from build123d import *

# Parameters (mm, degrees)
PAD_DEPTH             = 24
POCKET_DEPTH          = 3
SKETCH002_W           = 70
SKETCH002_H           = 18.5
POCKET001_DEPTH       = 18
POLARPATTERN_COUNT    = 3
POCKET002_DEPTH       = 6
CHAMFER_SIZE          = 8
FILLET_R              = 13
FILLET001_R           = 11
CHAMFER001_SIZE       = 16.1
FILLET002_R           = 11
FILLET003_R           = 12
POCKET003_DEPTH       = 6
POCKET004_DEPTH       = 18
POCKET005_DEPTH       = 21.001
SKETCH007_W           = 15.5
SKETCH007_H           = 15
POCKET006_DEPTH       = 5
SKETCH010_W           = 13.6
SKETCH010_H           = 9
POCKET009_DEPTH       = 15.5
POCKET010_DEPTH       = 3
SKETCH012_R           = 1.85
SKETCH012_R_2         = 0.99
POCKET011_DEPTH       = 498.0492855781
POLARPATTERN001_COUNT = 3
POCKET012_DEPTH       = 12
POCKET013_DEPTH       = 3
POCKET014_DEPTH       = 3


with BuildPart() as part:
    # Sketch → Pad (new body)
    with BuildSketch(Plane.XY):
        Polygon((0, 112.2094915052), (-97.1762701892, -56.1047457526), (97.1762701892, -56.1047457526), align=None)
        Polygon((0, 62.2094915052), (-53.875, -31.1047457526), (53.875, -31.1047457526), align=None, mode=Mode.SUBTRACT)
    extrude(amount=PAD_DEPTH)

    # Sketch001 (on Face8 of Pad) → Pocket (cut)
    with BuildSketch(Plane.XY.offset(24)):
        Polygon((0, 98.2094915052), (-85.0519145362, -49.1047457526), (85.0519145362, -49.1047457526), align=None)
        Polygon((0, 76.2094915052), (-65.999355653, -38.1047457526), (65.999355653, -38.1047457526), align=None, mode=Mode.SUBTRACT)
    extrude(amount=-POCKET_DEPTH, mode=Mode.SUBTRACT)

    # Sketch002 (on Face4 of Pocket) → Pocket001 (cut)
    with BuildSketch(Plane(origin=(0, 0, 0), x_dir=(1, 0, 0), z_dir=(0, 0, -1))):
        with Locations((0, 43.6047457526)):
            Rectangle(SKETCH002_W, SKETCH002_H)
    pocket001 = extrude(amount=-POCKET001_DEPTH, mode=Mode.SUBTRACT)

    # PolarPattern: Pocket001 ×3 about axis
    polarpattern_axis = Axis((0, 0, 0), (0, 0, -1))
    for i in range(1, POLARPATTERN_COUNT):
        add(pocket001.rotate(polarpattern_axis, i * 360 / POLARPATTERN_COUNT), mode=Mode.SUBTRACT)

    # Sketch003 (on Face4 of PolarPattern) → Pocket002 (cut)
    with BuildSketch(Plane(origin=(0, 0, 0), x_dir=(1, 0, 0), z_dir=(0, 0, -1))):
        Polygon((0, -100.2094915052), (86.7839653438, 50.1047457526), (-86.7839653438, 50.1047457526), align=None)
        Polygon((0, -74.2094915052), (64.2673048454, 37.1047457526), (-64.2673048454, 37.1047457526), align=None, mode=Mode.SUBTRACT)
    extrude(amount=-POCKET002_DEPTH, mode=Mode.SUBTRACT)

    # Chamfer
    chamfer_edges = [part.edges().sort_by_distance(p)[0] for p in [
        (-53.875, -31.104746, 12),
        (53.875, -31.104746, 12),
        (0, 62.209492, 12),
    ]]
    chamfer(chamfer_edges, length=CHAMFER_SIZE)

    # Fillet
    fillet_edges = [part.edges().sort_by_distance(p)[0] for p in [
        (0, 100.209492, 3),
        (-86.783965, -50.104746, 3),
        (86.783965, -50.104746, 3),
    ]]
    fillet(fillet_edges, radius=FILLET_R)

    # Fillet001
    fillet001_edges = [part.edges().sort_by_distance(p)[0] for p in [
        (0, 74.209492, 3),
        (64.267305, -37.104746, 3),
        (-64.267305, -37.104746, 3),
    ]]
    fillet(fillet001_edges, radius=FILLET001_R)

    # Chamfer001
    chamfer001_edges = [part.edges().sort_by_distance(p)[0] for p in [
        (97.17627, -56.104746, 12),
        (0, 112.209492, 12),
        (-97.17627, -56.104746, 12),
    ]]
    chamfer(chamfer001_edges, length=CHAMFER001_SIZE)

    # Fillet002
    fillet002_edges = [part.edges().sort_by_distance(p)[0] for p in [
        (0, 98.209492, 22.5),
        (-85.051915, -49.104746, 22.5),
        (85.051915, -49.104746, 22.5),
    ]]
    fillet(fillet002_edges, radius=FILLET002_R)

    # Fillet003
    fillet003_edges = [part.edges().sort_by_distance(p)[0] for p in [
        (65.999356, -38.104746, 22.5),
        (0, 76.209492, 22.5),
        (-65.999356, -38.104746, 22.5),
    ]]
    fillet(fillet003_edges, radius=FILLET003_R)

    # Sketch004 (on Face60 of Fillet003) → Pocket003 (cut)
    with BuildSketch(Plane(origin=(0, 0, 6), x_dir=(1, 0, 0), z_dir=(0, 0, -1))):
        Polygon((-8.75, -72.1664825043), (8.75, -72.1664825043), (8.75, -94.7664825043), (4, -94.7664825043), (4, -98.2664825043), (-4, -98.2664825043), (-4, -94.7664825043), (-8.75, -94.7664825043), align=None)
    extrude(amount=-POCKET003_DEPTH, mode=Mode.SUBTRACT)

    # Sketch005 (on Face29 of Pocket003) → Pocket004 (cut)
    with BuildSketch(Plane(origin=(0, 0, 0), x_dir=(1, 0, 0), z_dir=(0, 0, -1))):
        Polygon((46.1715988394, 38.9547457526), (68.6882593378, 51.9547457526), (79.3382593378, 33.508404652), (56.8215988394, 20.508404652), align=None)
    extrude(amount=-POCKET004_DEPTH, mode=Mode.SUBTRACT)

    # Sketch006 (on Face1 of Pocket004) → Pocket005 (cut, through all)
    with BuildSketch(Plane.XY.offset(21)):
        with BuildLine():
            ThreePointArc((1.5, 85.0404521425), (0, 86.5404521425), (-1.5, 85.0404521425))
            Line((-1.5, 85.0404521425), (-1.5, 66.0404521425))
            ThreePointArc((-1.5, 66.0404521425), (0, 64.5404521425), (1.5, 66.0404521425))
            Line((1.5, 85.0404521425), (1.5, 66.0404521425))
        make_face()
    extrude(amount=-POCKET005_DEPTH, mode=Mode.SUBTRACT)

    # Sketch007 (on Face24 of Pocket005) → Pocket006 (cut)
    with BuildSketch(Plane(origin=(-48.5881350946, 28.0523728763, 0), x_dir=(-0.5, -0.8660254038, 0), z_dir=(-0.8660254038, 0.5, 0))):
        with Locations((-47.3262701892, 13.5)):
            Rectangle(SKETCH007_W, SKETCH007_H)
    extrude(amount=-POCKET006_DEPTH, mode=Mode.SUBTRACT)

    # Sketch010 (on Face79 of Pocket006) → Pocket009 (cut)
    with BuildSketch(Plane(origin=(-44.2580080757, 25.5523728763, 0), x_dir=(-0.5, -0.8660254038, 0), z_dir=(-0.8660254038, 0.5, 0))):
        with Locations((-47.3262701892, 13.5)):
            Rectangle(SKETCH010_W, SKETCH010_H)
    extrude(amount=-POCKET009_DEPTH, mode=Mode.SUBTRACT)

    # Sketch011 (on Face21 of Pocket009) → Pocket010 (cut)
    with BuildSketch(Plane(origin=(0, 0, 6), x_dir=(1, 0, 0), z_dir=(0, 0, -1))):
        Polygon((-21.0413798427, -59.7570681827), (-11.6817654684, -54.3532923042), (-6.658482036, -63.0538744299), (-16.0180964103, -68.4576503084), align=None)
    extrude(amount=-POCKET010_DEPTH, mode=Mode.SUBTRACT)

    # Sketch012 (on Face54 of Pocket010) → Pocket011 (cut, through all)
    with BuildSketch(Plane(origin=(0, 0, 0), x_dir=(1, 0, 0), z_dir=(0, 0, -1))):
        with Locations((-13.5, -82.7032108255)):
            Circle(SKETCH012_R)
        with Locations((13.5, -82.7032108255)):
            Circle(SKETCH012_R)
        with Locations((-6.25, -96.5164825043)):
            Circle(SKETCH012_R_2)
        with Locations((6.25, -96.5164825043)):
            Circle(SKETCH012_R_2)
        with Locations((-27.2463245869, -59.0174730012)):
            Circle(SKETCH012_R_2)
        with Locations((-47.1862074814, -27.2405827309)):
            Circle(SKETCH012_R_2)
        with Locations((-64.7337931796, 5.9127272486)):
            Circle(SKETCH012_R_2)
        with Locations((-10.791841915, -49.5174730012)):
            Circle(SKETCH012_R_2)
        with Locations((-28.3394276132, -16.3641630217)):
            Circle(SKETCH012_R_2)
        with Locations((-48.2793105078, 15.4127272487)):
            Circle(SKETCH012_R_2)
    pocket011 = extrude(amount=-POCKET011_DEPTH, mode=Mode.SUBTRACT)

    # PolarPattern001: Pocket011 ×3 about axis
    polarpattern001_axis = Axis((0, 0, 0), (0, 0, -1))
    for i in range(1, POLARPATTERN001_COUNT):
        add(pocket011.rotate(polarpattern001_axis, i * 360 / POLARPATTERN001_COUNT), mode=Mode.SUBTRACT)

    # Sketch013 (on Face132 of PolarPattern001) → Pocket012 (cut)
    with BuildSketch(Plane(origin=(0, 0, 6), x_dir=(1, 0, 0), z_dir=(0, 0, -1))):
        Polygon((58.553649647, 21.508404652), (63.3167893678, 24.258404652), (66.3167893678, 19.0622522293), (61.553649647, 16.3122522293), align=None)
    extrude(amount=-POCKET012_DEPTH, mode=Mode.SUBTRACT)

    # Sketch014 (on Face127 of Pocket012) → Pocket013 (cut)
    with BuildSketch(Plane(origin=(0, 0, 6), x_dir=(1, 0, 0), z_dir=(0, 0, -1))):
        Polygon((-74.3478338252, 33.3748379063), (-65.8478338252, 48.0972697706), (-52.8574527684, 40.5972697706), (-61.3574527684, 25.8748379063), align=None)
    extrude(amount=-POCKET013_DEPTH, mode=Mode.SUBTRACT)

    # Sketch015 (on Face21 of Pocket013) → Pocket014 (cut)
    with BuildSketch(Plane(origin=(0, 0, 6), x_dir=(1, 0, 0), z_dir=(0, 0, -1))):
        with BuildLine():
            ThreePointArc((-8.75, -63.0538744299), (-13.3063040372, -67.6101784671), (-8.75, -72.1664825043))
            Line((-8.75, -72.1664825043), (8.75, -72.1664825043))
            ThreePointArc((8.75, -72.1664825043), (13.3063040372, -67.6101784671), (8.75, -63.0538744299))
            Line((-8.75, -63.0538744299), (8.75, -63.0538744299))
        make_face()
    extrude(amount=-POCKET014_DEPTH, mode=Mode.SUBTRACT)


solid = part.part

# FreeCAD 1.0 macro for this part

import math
import FreeCAD as App
import Part
import Sketcher

V = App.Vector
Q = App.Units.Quantity


def edges_at(feature, points):
    """Names of the edges that pass closest to the given points."""
    edges = feature.Shape.Edges
    near = lambda p: min(range(len(edges)), key=lambda i: edges[i].distToShape(Part.Vertex(*p))[0])
    return sorted({f"Edge{near(p) + 1}" for p in points})


def add_polygon(sketch, points):
    """Adds a closed chain of lines whose ends are joined by coincident constraints."""
    first, n = sketch.GeometryCount, len(points)
    for a, b in zip(points, points[1:] + points[:1]):
        sketch.addGeometry(Part.LineSegment(App.Vector(*a, 0), App.Vector(*b, 0)), False)
    for i in range(n):
        sketch.addConstraint(Sketcher.Constraint("Coincident", first + i, 2, first + (i + 1) % n, 1))

doc = App.newDocument("Part")
body = doc.addObject("PartDesign::Body", "Body")

sketch1 = body.newObject("Sketcher::SketchObject", "Sketch")
sketch1.AttachmentSupport = (doc.getObject("XY_Plane"), [""])
sketch1.MapMode = "FlatFace"
add_polygon(sketch1, [(0, 112), (-97, -56), (97, -56)])
add_polygon(sketch1, [(-54, -31), (0, 62), (54, -31)])
sketch1.addConstraint([
    Sketcher.Constraint("Horizontal", 1),
    Sketcher.Constraint("Horizontal", 5),
    Sketcher.Constraint("PointOnObject", 2, 2, -2),
    Sketcher.Constraint("PointOnObject", 3, 2, -2),
    Sketcher.Constraint("Parallel", 0, 3),
    Sketcher.Constraint("Parallel", 2, 4),
    Sketcher.Constraint("Equal", 0, 2),
    Sketcher.Constraint("Angle", 0, Q("-120 deg")),
    Sketcher.Constraint("DistanceY", 3, 2, 2, 2, Q("50 mm")),
    Sketcher.Constraint("DistanceY", 1, 2, 4, 2, Q("25 mm")),
    Sketcher.Constraint("DistanceX", 5, 2, 5, 1, Q("107.75 mm")),
    Sketcher.Constraint("DistanceY", -1, 1, 2, 2, Q("112.209492 mm")),
])
pad1 = body.newObject("PartDesign::Pad", "Pad")
pad1.Profile = sketch1
pad1.Length = 24

sketch2 = body.newObject("Sketcher::SketchObject", "Sketch001")
sketch2.AttachmentSupport = (doc.getObject("XY_Plane"), [""])
sketch2.MapMode = "FlatFace"
sketch2.AttachmentOffset = App.Placement(V(0, 0, 24), App.Rotation())
add_polygon(sketch2, [(0, 98), (-85, -49), (85, -49)])
add_polygon(sketch2, [(-66, -38), (0, 76), (66, -38)])
sketch2.addConstraint([
    Sketcher.Constraint("Horizontal", 1),
    Sketcher.Constraint("Horizontal", 5),
    Sketcher.Constraint("PointOnObject", 2, 2, -2),
    Sketcher.Constraint("PointOnObject", 3, 2, -2),
    Sketcher.Constraint("Parallel", 0, 3),
    Sketcher.Constraint("Parallel", 2, 4),
    Sketcher.Constraint("Equal", 0, 2),
    Sketcher.Constraint("Angle", 0, Q("-120 deg")),
    Sketcher.Constraint("DistanceY", 3, 2, 2, 2, Q("22 mm")),
    Sketcher.Constraint("DistanceY", 1, 2, 4, 2, Q("11 mm")),
    Sketcher.Constraint("DistanceX", 1, 1, 1, 2, Q("170.103829 mm")),
    Sketcher.Constraint("DistanceY", -1, 1, 2, 2, Q("98.209492 mm")),
])
pocket1 = body.newObject("PartDesign::Pocket", "Pocket")
pocket1.Profile = sketch2
pocket1.Length = 3

sketch3 = body.newObject("Sketcher::SketchObject", "Sketch002")
sketch3.AttachmentSupport = (doc.getObject("XY_Plane"), [""])
sketch3.MapMode = "FlatFace"
add_polygon(sketch3, [(-35, -53), (-35, -34), (35, -34), (35, -53)])
sketch3.addConstraint([
    Sketcher.Constraint("Vertical", 0),
    Sketcher.Constraint("Horizontal", 1),
    Sketcher.Constraint("Vertical", 2),
    Sketcher.Constraint("Horizontal", 3),
    Sketcher.Constraint("DistanceX", 1, 1, 1, 2, Q("70 mm")),
    Sketcher.Constraint("DistanceY", 0, 1, 0, 2, Q("18.5 mm")),
    Sketcher.Constraint("DistanceX", 0, 2, -1, 1, Q("35 mm")),
    Sketcher.Constraint("DistanceY", 0, 2, -1, 1, Q("34.354746 mm")),
])
pocket2 = body.newObject("PartDesign::Pocket", "Pocket001")
pocket2.Profile = sketch3
pocket2.Length = 18
pocket2.Reversed = True
doc.recompute()

polarpattern = body.newObject("PartDesign::PolarPattern", "PolarPattern")
polarpattern.Originals = [pocket2]
polarpattern.Axis = (doc.getObject("Z_Axis"), [""])
polarpattern.Angle = 360
polarpattern.Occurrences = 3
body.Tip = polarpattern

sketch4 = body.newObject("Sketcher::SketchObject", "Sketch003")
sketch4.AttachmentSupport = (doc.getObject("XY_Plane"), [""])
sketch4.MapMode = "FlatFace"
add_polygon(sketch4, [(0, 100), (87, -50), (-87, -50)])
add_polygon(sketch4, [(64, -37), (0, 74), (-64, -37)])
sketch4.addConstraint([
    Sketcher.Constraint("Horizontal", 1),
    Sketcher.Constraint("Horizontal", 5),
    Sketcher.Constraint("PointOnObject", 2, 2, -2),
    Sketcher.Constraint("PointOnObject", 3, 2, -2),
    Sketcher.Constraint("Parallel", 0, 3),
    Sketcher.Constraint("Parallel", 2, 4),
    Sketcher.Constraint("Equal", 0, 2),
    Sketcher.Constraint("Angle", 0, Q("-60 deg")),
    Sketcher.Constraint("DistanceY", 3, 2, 2, 2, Q("26 mm")),
    Sketcher.Constraint("DistanceY", 1, 2, 4, 2, Q("13 mm")),
    Sketcher.Constraint("DistanceX", 1, 2, 1, 1, Q("173.567931 mm")),
    Sketcher.Constraint("DistanceY", -1, 1, 2, 2, Q("100.209492 mm")),
])
pocket3 = body.newObject("PartDesign::Pocket", "Pocket002")
pocket3.Profile = sketch4
pocket3.Length = 6
pocket3.Reversed = True
doc.recompute()

chamfer = body.newObject("PartDesign::Chamfer", "Chamfer")
chamfer.Base = (pocket3, edges_at(pocket3, [(-53.875, -31.105, 12), (53.875, -31.105, 12), (0, 62.209, 12)]))
chamfer.Size = 8
doc.recompute()

fillet = body.newObject("PartDesign::Fillet", "Fillet")
fillet.Base = (chamfer, edges_at(chamfer, [(0, 100.209, 3), (-86.784, -50.105, 3), (86.784, -50.105, 3)]))
fillet.Radius = 13
doc.recompute()

fillet2 = body.newObject("PartDesign::Fillet", "Fillet001")
fillet2.Base = (fillet, edges_at(fillet, [(0, 74.209, 3), (64.267, -37.105, 3), (-64.267, -37.105, 3)]))
fillet2.Radius = 11
doc.recompute()

chamfer2 = body.newObject("PartDesign::Chamfer", "Chamfer001")
chamfer2.Base = (fillet2, edges_at(fillet2, [(97.176, -56.105, 12), (0, 112.209, 12), (-97.176, -56.105, 12)]))
chamfer2.Size = 16.1
doc.recompute()

fillet3 = body.newObject("PartDesign::Fillet", "Fillet002")
fillet3.Base = (chamfer2, edges_at(chamfer2, [(0, 98.209, 22.5), (-85.052, -49.105, 22.5), (85.052, -49.105, 22.5)]))
fillet3.Radius = 11
doc.recompute()

fillet4 = body.newObject("PartDesign::Fillet", "Fillet003")
fillet4.Base = (fillet3, edges_at(fillet3, [(65.999, -38.105, 22.5), (0, 76.209, 22.5), (-65.999, -38.105, 22.5)]))
fillet4.Radius = 12

sketch5 = body.newObject("Sketcher::SketchObject", "Sketch004")
sketch5.AttachmentSupport = (doc.getObject("XY_Plane"), [""])
sketch5.MapMode = "FlatFace"
sketch5.AttachmentOffset = App.Placement(V(0, 0, 6), App.Rotation())
add_polygon(sketch5, [(8.8, 72.2), (-8.8, 72.2), (-8.8, 94.8), (-4, 94.8), (-4, 98.3), (4, 98.3), (4, 94.8), (8.8, 94.8)])
sketch5.addConstraint([
    Sketcher.Constraint("Horizontal", 0),
    Sketcher.Constraint("Vertical", 1),
    Sketcher.Constraint("Horizontal", 2),
    Sketcher.Constraint("Vertical", 3),
    Sketcher.Constraint("Horizontal", 4),
    Sketcher.Constraint("Vertical", 5),
    Sketcher.Constraint("Horizontal", 6),
    Sketcher.Constraint("Vertical", 7),
    Sketcher.Constraint("Symmetric", 2, 2, 5, 2, -2),
    Sketcher.Constraint("Equal", 2, 6),
    Sketcher.Constraint("DistanceX", 4, 1, 4, 2, Q("8 mm")),
    Sketcher.Constraint("DistanceX", 0, 2, 0, 1, Q("17.5 mm")),
    Sketcher.Constraint("DistanceY", 1, 1, 1, 2, Q("22.6 mm")),
    Sketcher.Constraint("DistanceY", 3, 1, 3, 2, Q("3.5 mm")),
    Sketcher.Constraint("DistanceY", -1, 1, 0, 2, Q("72.166483 mm")),
])
pocket4 = body.newObject("PartDesign::Pocket", "Pocket003")
pocket4.Profile = sketch5
pocket4.Length = 6
pocket4.Reversed = True

sketch6 = body.newObject("Sketcher::SketchObject", "Sketch005")
sketch6.AttachmentSupport = (doc.getObject("XY_Plane"), [""])
sketch6.MapMode = "FlatFace"
add_polygon(sketch6, [(69, -52), (46, -39), (57, -21), (79, -34)])
sketch6.addConstraint([
    Sketcher.Constraint("Perpendicular", 0, 1),
    Sketcher.Constraint("Perpendicular", 1, 2),
    Sketcher.Constraint("Perpendicular", 2, 3),
    Sketcher.Constraint("Angle", 0, Q("150 deg")),
    Sketcher.Constraint("Distance", 0, Q("26 mm")),
    Sketcher.Constraint("Distance", 1, Q("21.3 mm")),
    Sketcher.Constraint("DistanceX", -1, 1, 0, 2, Q("46.171599 mm")),
    Sketcher.Constraint("DistanceY", 0, 2, -1, 1, Q("38.954746 mm")),
])
pocket5 = body.newObject("PartDesign::Pocket", "Pocket004")
pocket5.Profile = sketch6
pocket5.Length = 18
pocket5.Reversed = True

sketch7 = body.newObject("Sketcher::SketchObject", "Sketch006")
sketch7.AttachmentSupport = (doc.getObject("XY_Plane"), [""])
sketch7.MapMode = "FlatFace"
sketch7.AttachmentOffset = App.Placement(V(0, 0, 21), App.Rotation())
sketch7.addGeometry([
    Part.ArcOfCircle(Part.Circle(V(0, 85, 0), V(0, 0, 1), 1.5), math.radians(0), math.radians(180)),
    Part.LineSegment(V(-1.5, 85, 0), V(-1.5, 66, 0)),
    Part.ArcOfCircle(Part.Circle(V(0, 66, 0), V(0, 0, 1), 1.5), math.radians(180), math.radians(360)),
    Part.LineSegment(V(1.5, 66, 0), V(1.5, 85, 0)),
], False)
sketch7.addConstraint([
    Sketcher.Constraint("Tangent", 0, 2, 1, 1),
    Sketcher.Constraint("Tangent", 1, 2, 2, 1),
    Sketcher.Constraint("Tangent", 2, 2, 3, 1),
    Sketcher.Constraint("Tangent", 3, 2, 0, 1),
    Sketcher.Constraint("Vertical", 1),
    Sketcher.Constraint("Vertical", 3),
    Sketcher.Constraint("PointOnObject", 0, 3, -2),
    Sketcher.Constraint("Radius", 0, Q("1.5 mm")),
    Sketcher.Constraint("DistanceY", 1, 2, 1, 1, Q("19 mm")),
    Sketcher.Constraint("DistanceY", -1, 1, 0, 3, Q("85.040452 mm")),
])
pocket6 = body.newObject("PartDesign::Pocket", "Pocket005")
pocket6.Profile = sketch7
pocket6.Type = "ThroughAll"

sketch8 = body.newObject("Sketcher::SketchObject", "Sketch007")
sketch8.Placement = App.Placement(V(-48.588135, 28.052373, 0), App.Rotation(V(-0.5, -0.866025404, 0), V(0, 0, 1), V(-0.866025404, 0.5, 0), "ZXY"))
add_polygon(sketch8, [(-55, 21), (-55, 6), (-40, 6), (-40, 21)])
sketch8.addConstraint([
    Sketcher.Constraint("Vertical", 0),
    Sketcher.Constraint("Horizontal", 1),
    Sketcher.Constraint("Vertical", 2),
    Sketcher.Constraint("Horizontal", 3),
    Sketcher.Constraint("DistanceY", 0, 2, 0, 1, Q("15 mm")),
    Sketcher.Constraint("DistanceX", 1, 1, 1, 2, Q("15.5 mm")),
    Sketcher.Constraint("DistanceY", -1, 1, 0, 2, Q("6 mm")),
    Sketcher.Constraint("DistanceX", 0, 2, -1, 1, Q("55.07627 mm")),
])
pocket7 = body.newObject("PartDesign::Pocket", "Pocket006")
pocket7.Profile = sketch8
pocket7.Length = 5

sketch9 = body.newObject("Sketcher::SketchObject", "Sketch008")
sketch9.Placement = App.Placement(V(-44.258008, 25.552373, 0), App.Rotation(V(-0.5, -0.866025404, 0), V(0, 0, 1), V(-0.866025404, 0.5, 0), "ZXY"))
add_polygon(sketch9, [(-54, 18), (-54, 9), (-41, 9), (-41, 18)])
sketch9.addConstraint([
    Sketcher.Constraint("Vertical", 0),
    Sketcher.Constraint("Horizontal", 1),
    Sketcher.Constraint("Vertical", 2),
    Sketcher.Constraint("Horizontal", 3),
    Sketcher.Constraint("DistanceY", 0, 2, 0, 1, Q("9 mm")),
    Sketcher.Constraint("DistanceX", 1, 1, 1, 2, Q("13.6 mm")),
    Sketcher.Constraint("DistanceY", -1, 1, 0, 2, Q("9 mm")),
    Sketcher.Constraint("DistanceX", 0, 2, -1, 1, Q("54.12627 mm")),
])
pocket8 = body.newObject("PartDesign::Pocket", "Pocket007")
pocket8.Profile = sketch9
pocket8.Length = 15.5

sketch10 = body.newObject("Sketcher::SketchObject", "Sketch009")
sketch10.AttachmentSupport = (doc.getObject("XY_Plane"), [""])
sketch10.MapMode = "FlatFace"
sketch10.AttachmentOffset = App.Placement(V(0, 0, 6), App.Rotation())
add_polygon(sketch10, [(-12, 54), (-21, 60), (-16, 68), (-7, 63)])
sketch10.addConstraint([
    Sketcher.Constraint("Perpendicular", 0, 1),
    Sketcher.Constraint("Perpendicular", 1, 2),
    Sketcher.Constraint("Perpendicular", 2, 3),
    Sketcher.Constraint("Angle", 0, Q("150 deg")),
    Sketcher.Constraint("Distance", 0, Q("10.807552 mm")),
    Sketcher.Constraint("DistanceX", 0, 2, -1, 1, Q("21.04138 mm")),
    Sketcher.Constraint("DistanceY", -1, 1, 0, 2, Q("59.757068 mm")),
    Sketcher.Constraint("DistanceY", -1, 1, 1, 2, Q("68.45765 mm")),
])
pocket9 = body.newObject("PartDesign::Pocket", "Pocket008")
pocket9.Profile = sketch10
pocket9.Length = 3
pocket9.Reversed = True

sketch11 = body.newObject("Sketcher::SketchObject", "Sketch010")
sketch11.AttachmentSupport = (doc.getObject("XY_Plane"), [""])
sketch11.MapMode = "FlatFace"
sketch11.addGeometry([
    Part.Circle(V(-13.5, 82.7, 0), V(0, 0, 1), 1.9),
    Part.Circle(V(13.5, 82.7, 0), V(0, 0, 1), 1.9),
    Part.Circle(V(-6.2, 96.5, 0), V(0, 0, 1), 1),
    Part.Circle(V(6.2, 96.5, 0), V(0, 0, 1), 1),
    Part.Circle(V(-27.2, 59, 0), V(0, 0, 1), 1),
    Part.Circle(V(-47.2, 27.2, 0), V(0, 0, 1), 1),
    Part.Circle(V(-64.7, -5.9, 0), V(0, 0, 1), 1),
    Part.Circle(V(-10.8, 49.5, 0), V(0, 0, 1), 1),
    Part.Circle(V(-28.3, 16.4, 0), V(0, 0, 1), 1),
    Part.Circle(V(-48.3, -15.4, 0), V(0, 0, 1), 1),
], False)
sketch11.addConstraint([
    Sketcher.Constraint("Equal", 0, 1),
    Sketcher.Constraint("Equal", 2, 3),
    Sketcher.Constraint("Equal", 3, 4),
    Sketcher.Constraint("Equal", 4, 5),
    Sketcher.Constraint("Equal", 5, 6),
    Sketcher.Constraint("Equal", 6, 7),
    Sketcher.Constraint("Equal", 7, 8),
    Sketcher.Constraint("Equal", 8, 9),
    Sketcher.Constraint("Symmetric", 0, 3, 1, 3, -2),
    Sketcher.Constraint("Symmetric", 2, 3, 3, 3, -2),
    Sketcher.Constraint("Diameter", 0, Q("3.7 mm")),
    Sketcher.Constraint("Diameter", 2, Q("1.98 mm")),
    Sketcher.Constraint("DistanceX", 0, 3, 1, 3, Q("27 mm")),
    Sketcher.Constraint("DistanceX", 2, 3, 3, 3, Q("12.5 mm")),
    Sketcher.Constraint("DistanceY", 7, 3, 4, 3, Q("9.5 mm")),
    Sketcher.Constraint("DistanceY", 9, 3, 6, 3, Q("9.5 mm")),
    Sketcher.Constraint("DistanceY", 5, 3, 2, 3, Q("69.2759 mm")),
    Sketcher.Constraint("DistanceY", 6, 3, 4, 3, Q("64.9302 mm")),
    Sketcher.Constraint("DistanceY", -1, 1, 0, 3, Q("82.703211 mm")),
    Sketcher.Constraint("DistanceX", 7, 3, -1, 1, Q("10.791842 mm")),
    Sketcher.Constraint("DistanceX", 9, 3, -1, 1, Q("48.279311 mm")),
    Sketcher.Constraint("DistanceY", 0, 3, 2, 3, Q("13.813272 mm")),
    Sketcher.Constraint("DistanceY", 4, 3, 2, 3, Q("37.49901 mm")),
    Sketcher.Constraint("DistanceX", 6, 3, 4, 3, Q("37.487469 mm")),
    Sketcher.Constraint("DistanceX", 5, 3, 8, 3, Q("18.84678 mm")),
    Sketcher.Constraint("DistanceY", 8, 3, 5, 3, Q("10.87642 mm")),
    Sketcher.Constraint("DistanceX", 4, 3, -1, 1, Q("27.246325 mm")),
    Sketcher.Constraint("DistanceX", 5, 3, -1, 1, Q("47.186207 mm")),
])
pocket10 = body.newObject("PartDesign::Pocket", "Pocket009")
pocket10.Profile = sketch11
pocket10.Type = "ThroughAll"
pocket10.Reversed = True
doc.recompute()

polarpattern2 = body.newObject("PartDesign::PolarPattern", "PolarPattern001")
polarpattern2.Originals = [pocket10]
polarpattern2.Axis = (doc.getObject("Z_Axis"), [""])
polarpattern2.Angle = 360
polarpattern2.Occurrences = 3
body.Tip = polarpattern2

sketch12 = body.newObject("Sketcher::SketchObject", "Sketch011")
sketch12.AttachmentSupport = (doc.getObject("XY_Plane"), [""])
sketch12.MapMode = "FlatFace"
sketch12.AttachmentOffset = App.Placement(V(0, 0, 6), App.Rotation())
add_polygon(sketch12, [(63, -24), (59, -22), (62, -16), (66, -19)])
sketch12.addConstraint([
    Sketcher.Constraint("Perpendicular", 0, 1),
    Sketcher.Constraint("Perpendicular", 1, 2),
    Sketcher.Constraint("Perpendicular", 2, 3),
    Sketcher.Constraint("Angle", 0, Q("150 deg")),
    Sketcher.Constraint("Distance", 1, Q("6 mm")),
    Sketcher.Constraint("Distance", 0, Q("5.5 mm")),
    Sketcher.Constraint("DistanceX", -1, 1, 0, 2, Q("58.55365 mm")),
    Sketcher.Constraint("DistanceY", 0, 2, -1, 1, Q("21.508405 mm")),
])
pocket11 = body.newObject("PartDesign::Pocket", "Pocket010")
pocket11.Profile = sketch12
pocket11.Length = 12
pocket11.Reversed = True

sketch13 = body.newObject("Sketcher::SketchObject", "Sketch012")
sketch13.AttachmentSupport = (doc.getObject("XY_Plane"), [""])
sketch13.MapMode = "FlatFace"
sketch13.AttachmentOffset = App.Placement(V(0, 0, 6), App.Rotation())
add_polygon(sketch13, [(-66, -48), (-74, -33), (-61, -26), (-53, -41)])
sketch13.addConstraint([
    Sketcher.Constraint("Perpendicular", 0, 1),
    Sketcher.Constraint("Perpendicular", 1, 2),
    Sketcher.Constraint("Perpendicular", 2, 3),
    Sketcher.Constraint("Angle", 0, Q("120 deg")),
    Sketcher.Constraint("Distance", 0, Q("17 mm")),
    Sketcher.Constraint("Distance", 1, Q("15 mm")),
    Sketcher.Constraint("DistanceY", 2, 2, -1, 1, Q("40.59727 mm")),
    Sketcher.Constraint("DistanceX", 0, 2, -1, 1, Q("74.347834 mm")),
])
pocket12 = body.newObject("PartDesign::Pocket", "Pocket011")
pocket12.Profile = sketch13
pocket12.Length = 3
pocket12.Reversed = True

sketch14 = body.newObject("Sketcher::SketchObject", "Sketch013")
sketch14.AttachmentSupport = (doc.getObject("XY_Plane"), [""])
sketch14.MapMode = "FlatFace"
sketch14.AttachmentOffset = App.Placement(V(0, 0, 6), App.Rotation())
sketch14.addGeometry([
    Part.ArcOfCircle(Part.Circle(V(-8.8, 67.6, 0), V(0, 0, 1), 4.6), math.radians(90), math.radians(270)),
    Part.LineSegment(V(-8.8, 72.2, 0), V(8.8, 72.2, 0)),
    Part.ArcOfCircle(Part.Circle(V(8.8, 67.6, 0), V(0, 0, 1), 4.6), math.radians(-90), math.radians(90)),
    Part.LineSegment(V(8.8, 63.1, 0), V(-8.8, 63.1, 0)),
], False)
sketch14.addConstraint([
    Sketcher.Constraint("Tangent", 0, 1, 1, 1),
    Sketcher.Constraint("Tangent", 1, 2, 2, 2),
    Sketcher.Constraint("Tangent", 2, 1, 3, 1),
    Sketcher.Constraint("Tangent", 3, 2, 0, 2),
    Sketcher.Constraint("Horizontal", 1),
    Sketcher.Constraint("Horizontal", 3),
    Sketcher.Constraint("DistanceX", 1, 1, 1, 2, Q("17.5 mm")),
    Sketcher.Constraint("DistanceX", 0, 3, -1, 1, Q("8.75 mm")),
    Sketcher.Constraint("Radius", 0, Q("4.556304 mm")),
    Sketcher.Constraint("DistanceY", -1, 1, 0, 3, Q("67.610178 mm")),
])
pocket13 = body.newObject("PartDesign::Pocket", "Pocket012")
pocket13.Profile = sketch14
pocket13.Length = 3
pocket13.Reversed = True

doc.recompute()
